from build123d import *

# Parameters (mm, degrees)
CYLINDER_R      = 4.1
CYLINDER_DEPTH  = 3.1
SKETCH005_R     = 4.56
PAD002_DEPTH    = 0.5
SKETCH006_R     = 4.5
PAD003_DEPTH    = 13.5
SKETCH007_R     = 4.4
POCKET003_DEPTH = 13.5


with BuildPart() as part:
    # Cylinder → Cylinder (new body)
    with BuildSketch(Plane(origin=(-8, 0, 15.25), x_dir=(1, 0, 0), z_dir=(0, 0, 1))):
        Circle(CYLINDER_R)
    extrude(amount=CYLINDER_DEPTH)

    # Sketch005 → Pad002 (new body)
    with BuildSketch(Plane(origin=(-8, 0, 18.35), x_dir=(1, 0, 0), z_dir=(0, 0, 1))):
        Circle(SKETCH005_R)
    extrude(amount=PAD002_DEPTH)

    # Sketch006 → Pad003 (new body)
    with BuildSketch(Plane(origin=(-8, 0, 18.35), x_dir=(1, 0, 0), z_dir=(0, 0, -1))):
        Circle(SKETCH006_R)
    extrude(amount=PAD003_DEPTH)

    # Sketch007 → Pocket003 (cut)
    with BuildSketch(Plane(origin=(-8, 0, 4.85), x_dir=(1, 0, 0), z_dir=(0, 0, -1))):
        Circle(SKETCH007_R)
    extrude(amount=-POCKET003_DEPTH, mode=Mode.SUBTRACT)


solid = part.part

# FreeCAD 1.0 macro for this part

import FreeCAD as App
import Part
import Sketcher
from FreeCAD import Vector

doc = App.newDocument("Part")
body = doc.addObject("PartDesign::Body", "Body")

# Sketch on XY plane
sketch1 = body.newObject("Sketcher::SketchObject", "Sketch")
sketch1.AttachmentSupport = (doc.getObject("XY_Plane"), [""])
sketch1.MapMode = "FlatFace"
sketch1.AttachmentOffset = App.Placement(Vector(0, 0, 15.25), App.Rotation())
sketch1.addGeometry(Part.Circle(Vector(-8, 0, 0), Vector(0, 0, 1), 4.1), False)
sketch1.addConstraint(Sketcher.Constraint("PointOnObject", 0, 3, -1))
sketch1.addConstraint(Sketcher.Constraint("Diameter", 0, 8.2))
sketch1.addConstraint(Sketcher.Constraint("DistanceX", 0, 3, -1, 1, 8.0))
pad1 = body.newObject("PartDesign::Pad", "Pad")
pad1.Profile = sketch1
pad1.Length = 3.1

# Sketch on XY plane
sketch2 = body.newObject("Sketcher::SketchObject", "Sketch001")
sketch2.AttachmentSupport = (doc.getObject("XY_Plane"), [""])
sketch2.MapMode = "FlatFace"
sketch2.AttachmentOffset = App.Placement(Vector(0, 0, 18.35), App.Rotation())
sketch2.addGeometry(Part.Circle(Vector(-8, 0, 0), Vector(0, 0, 1), 4.6), False)
sketch2.addConstraint(Sketcher.Constraint("PointOnObject", 0, 3, -1))
sketch2.addConstraint(Sketcher.Constraint("Diameter", 0, 9.12))
sketch2.addConstraint(Sketcher.Constraint("DistanceX", 0, 3, -1, 1, 8.0))
pad2 = body.newObject("PartDesign::Pad", "Pad001")
pad2.Profile = sketch2
pad2.Length = 0.5

# Sketch on XY plane
sketch3 = body.newObject("Sketcher::SketchObject", "Sketch002")
sketch3.AttachmentSupport = (doc.getObject("XY_Plane"), [""])
sketch3.MapMode = "FlatFace"
sketch3.AttachmentOffset = App.Placement(Vector(0, 0, 18.35), App.Rotation())
sketch3.addGeometry(Part.Circle(Vector(-8, 0, 0), Vector(0, 0, 1), 4.5), False)
sketch3.addConstraint(Sketcher.Constraint("PointOnObject", 0, 3, -1))
sketch3.addConstraint(Sketcher.Constraint("Diameter", 0, 9.0))
sketch3.addConstraint(Sketcher.Constraint("DistanceX", 0, 3, -1, 1, 8.0))
pad3 = body.newObject("PartDesign::Pad", "Pad002")
pad3.Profile = sketch3
pad3.Length = 13.5
pad3.Reversed = True

# Sketch on XY plane
sketch4 = body.newObject("Sketcher::SketchObject", "Sketch003")
sketch4.AttachmentSupport = (doc.getObject("XY_Plane"), [""])
sketch4.MapMode = "FlatFace"
sketch4.AttachmentOffset = App.Placement(Vector(0, 0, 4.85), App.Rotation())
sketch4.addGeometry(Part.Circle(Vector(-8, 0, 0), Vector(0, 0, 1), 4.4), False)
sketch4.addConstraint(Sketcher.Constraint("PointOnObject", 0, 3, -1))
sketch4.addConstraint(Sketcher.Constraint("Diameter", 0, 8.8))
sketch4.addConstraint(Sketcher.Constraint("DistanceX", 0, 3, -1, 1, 8.0))
pocket1 = body.newObject("PartDesign::Pocket", "Pocket")
pocket1.Profile = sketch4
pocket1.Length = 13.5
pocket1.Reversed = True

doc.recompute()
